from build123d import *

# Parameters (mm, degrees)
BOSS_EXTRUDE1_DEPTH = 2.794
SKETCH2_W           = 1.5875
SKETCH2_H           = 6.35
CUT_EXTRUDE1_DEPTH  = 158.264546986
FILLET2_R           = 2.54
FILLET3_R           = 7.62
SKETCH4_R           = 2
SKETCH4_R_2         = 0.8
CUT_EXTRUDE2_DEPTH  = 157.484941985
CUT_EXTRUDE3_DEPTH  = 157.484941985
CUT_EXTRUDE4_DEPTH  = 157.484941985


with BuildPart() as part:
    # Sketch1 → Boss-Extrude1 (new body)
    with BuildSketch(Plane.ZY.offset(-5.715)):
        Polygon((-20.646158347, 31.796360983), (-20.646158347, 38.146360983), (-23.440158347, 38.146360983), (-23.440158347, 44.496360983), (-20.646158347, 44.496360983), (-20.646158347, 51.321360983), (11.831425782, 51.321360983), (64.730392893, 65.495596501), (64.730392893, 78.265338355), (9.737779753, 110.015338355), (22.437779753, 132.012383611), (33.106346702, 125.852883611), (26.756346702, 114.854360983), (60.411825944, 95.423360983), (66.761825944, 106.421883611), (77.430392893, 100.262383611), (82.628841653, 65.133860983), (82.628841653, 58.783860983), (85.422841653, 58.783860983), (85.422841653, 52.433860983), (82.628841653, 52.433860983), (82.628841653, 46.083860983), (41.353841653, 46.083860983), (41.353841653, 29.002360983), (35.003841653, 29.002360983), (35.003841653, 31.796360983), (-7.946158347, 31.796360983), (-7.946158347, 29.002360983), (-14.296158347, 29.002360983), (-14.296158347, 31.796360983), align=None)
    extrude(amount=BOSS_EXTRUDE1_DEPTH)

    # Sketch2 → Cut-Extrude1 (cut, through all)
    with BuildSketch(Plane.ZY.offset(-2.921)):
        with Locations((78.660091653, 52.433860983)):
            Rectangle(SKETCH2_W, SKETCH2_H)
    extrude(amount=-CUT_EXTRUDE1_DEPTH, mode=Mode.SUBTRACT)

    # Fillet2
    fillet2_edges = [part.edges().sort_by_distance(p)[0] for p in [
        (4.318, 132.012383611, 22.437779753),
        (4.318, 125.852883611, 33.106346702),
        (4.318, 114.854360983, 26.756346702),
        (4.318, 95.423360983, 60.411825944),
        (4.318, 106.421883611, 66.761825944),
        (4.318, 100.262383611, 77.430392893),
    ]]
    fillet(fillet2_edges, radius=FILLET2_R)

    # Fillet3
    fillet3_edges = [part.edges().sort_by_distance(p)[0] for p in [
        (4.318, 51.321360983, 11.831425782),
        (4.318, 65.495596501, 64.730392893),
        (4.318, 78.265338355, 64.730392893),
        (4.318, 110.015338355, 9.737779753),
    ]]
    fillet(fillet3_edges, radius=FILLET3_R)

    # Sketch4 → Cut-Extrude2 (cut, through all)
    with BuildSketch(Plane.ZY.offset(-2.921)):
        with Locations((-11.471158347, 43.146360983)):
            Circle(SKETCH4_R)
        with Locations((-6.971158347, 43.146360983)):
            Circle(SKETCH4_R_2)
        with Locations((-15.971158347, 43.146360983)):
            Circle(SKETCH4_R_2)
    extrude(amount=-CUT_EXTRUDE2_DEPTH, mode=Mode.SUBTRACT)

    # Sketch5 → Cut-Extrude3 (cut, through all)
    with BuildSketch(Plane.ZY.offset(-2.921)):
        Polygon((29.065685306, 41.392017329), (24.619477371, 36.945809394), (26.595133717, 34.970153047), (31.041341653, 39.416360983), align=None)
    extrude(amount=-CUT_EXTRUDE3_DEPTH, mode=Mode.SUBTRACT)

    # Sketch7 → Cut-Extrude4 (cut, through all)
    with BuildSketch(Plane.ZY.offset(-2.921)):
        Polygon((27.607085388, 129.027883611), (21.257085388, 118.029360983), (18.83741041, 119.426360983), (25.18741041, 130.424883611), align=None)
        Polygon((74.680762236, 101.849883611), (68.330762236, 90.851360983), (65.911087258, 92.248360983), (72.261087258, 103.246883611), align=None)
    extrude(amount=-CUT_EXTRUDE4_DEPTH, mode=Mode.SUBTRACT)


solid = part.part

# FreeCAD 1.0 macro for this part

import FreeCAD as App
import Part
import Sketcher
from FreeCAD import Vector
Q = App.Units.Quantity


def edges_at(feature, points):
    """Names of the edges that pass closest to the given points."""
    edges = feature.Shape.Edges
    near = lambda p: min(range(len(edges)), key=lambda i: edges[i].distToShape(Part.Vertex(*p))[0])
    return sorted({f"Edge{near(p) + 1}" for p in points})


def add_polygon(sketch, points):
    """Adds a closed chain of lines whose ends are joined by coincident constraints."""
    first, n = sketch.GeometryCount, len(points)
    for a, b in zip(points, points[1:] + points[:1]):
        sketch.addGeometry(Part.LineSegment(App.Vector(*a, 0), App.Vector(*b, 0)), False)
    for i in range(n):
        sketch.addConstraint(Sketcher.Constraint("Coincident", first + i, 2, first + (i + 1) % n, 1))

doc = App.newDocument("Part")
body = doc.addObject("PartDesign::Body", "Body")

# Sketch on YZ plane
sketch1 = body.newObject("Sketcher::SketchObject", "Sketch")
sketch1.AttachmentSupport = (doc.getObject("YZ_Plane"), [""])
sketch1.MapMode = "FlatFace"
sketch1.AttachmentOffset = App.Placement(Vector(0, 0, 0.225 * 25.4), App.Rotation())
add_polygon(sketch1, [(38.1, -20.6), (31.8, -20.6), (31.8, -14.3), (29, -14.3), (29, -7.9), (31.8, -7.9), (31.8, 35), (29, 35), (29, 41.4), (46.1, 41.4), (46.1, 82.6), (52.4, 82.6), (52.4, 85.4), (58.8, 85.4), (58.8, 82.6), (65.1, 82.6), (100.3, 77.4), (106.4, 66.8), (95.4, 60.4), (114.9, 26.8), (125.9, 33.1), (132, 22.4), (110, 9.7), (78.3, 64.7), (65.5, 64.7), (51.3, 11.8), (51.3, -20.6), (44.5, -20.6), (44.5, -23.4), (38.1, -23.4)])  # lines 0-29
sketch1.addConstraint(Sketcher.Constraint("Horizontal", 0))
sketch1.addConstraint(Sketcher.Constraint("Vertical", 1))
sketch1.addConstraint(Sketcher.Constraint("Horizontal", 2))
sketch1.addConstraint(Sketcher.Constraint("Vertical", 3))
sketch1.addConstraint(Sketcher.Constraint("Horizontal", 4))
sketch1.addConstraint(Sketcher.Constraint("Vertical", 5))
sketch1.addConstraint(Sketcher.Constraint("Horizontal", 6))
sketch1.addConstraint(Sketcher.Constraint("Vertical", 7))
sketch1.addConstraint(Sketcher.Constraint("Horizontal", 8))
sketch1.addConstraint(Sketcher.Constraint("Vertical", 9))
sketch1.addConstraint(Sketcher.Constraint("Horizontal", 10))
sketch1.addConstraint(Sketcher.Constraint("Vertical", 11))
sketch1.addConstraint(Sketcher.Constraint("Horizontal", 12))
sketch1.addConstraint(Sketcher.Constraint("Vertical", 13))
sketch1.addConstraint(Sketcher.Constraint("Horizontal", 14))
sketch1.addConstraint(Sketcher.Constraint("Horizontal", 23))
sketch1.addConstraint(Sketcher.Constraint("Vertical", 25))
sketch1.addConstraint(Sketcher.Constraint("Horizontal", 26))
sketch1.addConstraint(Sketcher.Constraint("Vertical", 27))
sketch1.addConstraint(Sketcher.Constraint("Horizontal", 28))
sketch1.addConstraint(Sketcher.Constraint("Vertical", 29))
sketch1.addConstraint(Sketcher.Constraint("Perpendicular", 16, 17))
sketch1.addConstraint(Sketcher.Constraint("Perpendicular", 17, 18))
sketch1.addConstraint(Sketcher.Constraint("Perpendicular", 18, 19))
sketch1.addConstraint(Sketcher.Constraint("Perpendicular", 19, 20))
sketch1.addConstraint(Sketcher.Constraint("Perpendicular", 20, 21))
sketch1.addConstraint(Sketcher.Constraint("Perpendicular", 21, 22))
sketch1.addConstraint(Sketcher.Constraint("Horizontal", 10, 2, 13, 2))
sketch1.addConstraint(Sketcher.Constraint("Horizontal", 0, 2, 25, 2))
sketch1.addConstraint(Sketcher.Constraint("Vertical", 1, 2, 4, 2))
sketch1.addConstraint(Sketcher.Constraint("Vertical", 3, 2, 6, 2))
sketch1.addConstraint(Sketcher.Constraint("Equal", 0, 10))
sketch1.addConstraint(Sketcher.Constraint("Equal", 10, 12))
sketch1.addConstraint(Sketcher.Constraint("Equal", 12, 14))
sketch1.addConstraint(Sketcher.Constraint("Equal", 14, 28))
sketch1.addConstraint(Sketcher.Constraint("Equal", 28, 1))
sketch1.addConstraint(Sketcher.Constraint("Equal", 1, 3))
sketch1.addConstraint(Sketcher.Constraint("Equal", 3, 7))
sketch1.addConstraint(Sketcher.Constraint("Equal", 6, 11))
sketch1.addConstraint(Sketcher.Constraint("Equal", 13, 27))
sketch1.addConstraint(Sketcher.Constraint("Equal", 17, 19))
sketch1.addConstraint(Sketcher.Constraint("Equal", 16, 20))
sketch1.addConstraint(Sketcher.Constraint("Distance", 21, Q("1 in")))
sketch1.addConstraint(Sketcher.Constraint("Angle", 16, Q("-60 deg")))
sketch1.addConstraint(Sketcher.Constraint("Angle", 24, Q("-105 deg")))
sketch1.addConstraint(Sketcher.Constraint("Distance", 17, Q("0.5 in")))
sketch1.addConstraint(Sketcher.Constraint("Distance", 22, Q("2.5 in")))
sketch1.addConstraint(Sketcher.Constraint("DistanceX", 0, 2, 0, 1, Q("0.25 in")))
sketch1.addConstraint(Sketcher.Constraint("DistanceX", 2, 2, 2, 1, Q("0.11 in")))
sketch1.addConstraint(Sketcher.Constraint("DistanceY", 22, 2, 15, 2, Q("0.5 in")))
sketch1.addConstraint(Sketcher.Constraint("Distance", 18, Q("1.53 in")))
sketch1.addConstraint(Sketcher.Constraint("DistanceY", 9, 1, 9, 2, Q("1.625 in")))
sketch1.addConstraint(Sketcher.Constraint("DistanceX", 8, 1, 8, 2, Q("0.6725 in")))
sketch1.addConstraint(Sketcher.Constraint("DistanceX", 26, 2, 26, 1, Q("6.825 mm")))
sketch1.addConstraint(Sketcher.Constraint("DistanceY", 5, 1, 5, 2, Q("42.95 mm")))
sketch1.addConstraint(Sketcher.Constraint("DistanceX", 14, 2, 17, 2, Q("1.1925 in")))
sketch1.addConstraint(Sketcher.Constraint("DistanceY", 24, 2, 8, 2, Q("1.1622998 in")))
sketch1.addConstraint(Sketcher.Constraint("DistanceX", 23, 2, 23, 1, Q("12.769742 mm")))
sketch1.addConstraint(Sketcher.Constraint("DistanceX", -1, 1, 0, 2, Q("31.796361 mm")))
sketch1.addConstraint(Sketcher.Constraint("DistanceY", 0, 2, -1, 1, Q("20.646158 mm")))
pad1 = body.newObject("PartDesign::Pad", "Pad")
pad1.Profile = sketch1
pad1.Length = Q("0.11 in")
pad1.Reversed = True

# Sketch on YZ plane
sketch2 = body.newObject("Sketcher::SketchObject", "Sketch001")
sketch2.AttachmentSupport = (doc.getObject("YZ_Plane"), [""])
sketch2.MapMode = "FlatFace"
sketch2.AttachmentOffset = App.Placement(Vector(0, 0, 0.115 * 25.4), App.Rotation())
add_polygon(sketch2, [(55.6, 77.9), (49.3, 77.9), (49.3, 79.5), (55.6, 79.5)])  # lines 0-3
sketch2.addConstraint(Sketcher.Constraint("Horizontal", 0))
sketch2.addConstraint(Sketcher.Constraint("Vertical", 1))
sketch2.addConstraint(Sketcher.Constraint("Horizontal", 2))
sketch2.addConstraint(Sketcher.Constraint("Vertical", 3))
sketch2.addConstraint(Sketcher.Constraint("DistanceX", 0, 2, 0, 1, Q("0.25 in")))
sketch2.addConstraint(Sketcher.Constraint("DistanceY", 1, 1, 1, 2, Q("0.0625 in")))
sketch2.addConstraint(Sketcher.Constraint("DistanceX", -1, 1, 0, 2, Q("49.258861 mm")))
sketch2.addConstraint(Sketcher.Constraint("DistanceY", -1, 1, 0, 2, Q("77.866342 mm")))
pocket1 = body.newObject("PartDesign::Pocket", "Pocket")
pocket1.Profile = sketch2
pocket1.Type = "ThroughAll"
pocket1.Reversed = True
doc.recompute()

fillet = body.newObject("PartDesign::Fillet", "Fillet")
fillet.Base = (pocket1, edges_at(pocket1, [
    (4.318, 132.012, 22.438),
    (4.318, 125.853, 33.106),
    (4.318, 114.854, 26.756),
    (4.318, 95.423, 60.412),
    (4.318, 106.422, 66.762),
    (4.318, 100.262, 77.43),
]))
fillet.Radius = Q("0.1 in")
doc.recompute()

fillet2 = body.newObject("PartDesign::Fillet", "Fillet001")
fillet2.Base = (fillet, edges_at(fillet, [
    (4.318, 51.321, 11.831),
    (4.318, 65.496, 64.73),
    (4.318, 78.265, 64.73),
    (4.318, 110.015, 9.738),
]))
fillet2.Radius = Q("0.3 in")

# Sketch on YZ plane
sketch3 = body.newObject("Sketcher::SketchObject", "Sketch002")
sketch3.AttachmentSupport = (doc.getObject("YZ_Plane"), [""])
sketch3.MapMode = "FlatFace"
sketch3.AttachmentOffset = App.Placement(Vector(0, 0, 0.115 * 25.4), App.Rotation())
sketch3.addGeometry(Part.Circle(Vector(43.1, -11.5, 0), Vector(0, 0, 1), 2), False)
sketch3.addGeometry(Part.Circle(Vector(43.1, -7, 0), Vector(0, 0, 1), 0.8), False)
sketch3.addGeometry(Part.Circle(Vector(43.1, -16, 0), Vector(0, 0, 1), 0.8), False)
sketch3.addConstraint(Sketcher.Constraint("Equal", 1, 2))
sketch3.addConstraint(Sketcher.Constraint("Vertical", 0, 3, 1, 3))
sketch3.addConstraint(Sketcher.Constraint("Vertical", 1, 3, 2, 3))
sketch3.addConstraint(Sketcher.Constraint("Diameter", 0, Q("4 mm")))
sketch3.addConstraint(Sketcher.Constraint("Diameter", 1, Q("1.6 mm")))
sketch3.addConstraint(Sketcher.Constraint("DistanceY", 0, 3, 1, 3, Q("4.5 mm")))
sketch3.addConstraint(Sketcher.Constraint("DistanceY", 2, 3, 0, 3, Q("4.5 mm")))
sketch3.addConstraint(Sketcher.Constraint("DistanceX", -1, 1, 0, 3, Q("43.146361 mm")))
sketch3.addConstraint(Sketcher.Constraint("DistanceY", 0, 3, -1, 1, Q("11.471158 mm")))
pocket2 = body.newObject("PartDesign::Pocket", "Pocket001")
pocket2.Profile = sketch3
pocket2.Type = "ThroughAll"
pocket2.Reversed = True

# Sketch on YZ plane
sketch4 = body.newObject("Sketcher::SketchObject", "Sketch003")
sketch4.AttachmentSupport = (doc.getObject("YZ_Plane"), [""])
sketch4.MapMode = "FlatFace"
sketch4.AttachmentOffset = App.Placement(Vector(0, 0, 0.115 * 25.4), App.Rotation())
add_polygon(sketch4, [(41.4, 29.1), (36.9, 24.6), (35, 26.6), (39.4, 31)])  # lines 0-3
sketch4.addConstraint(Sketcher.Constraint("Perpendicular", 0, 1))
sketch4.addConstraint(Sketcher.Constraint("Perpendicular", 1, 2))
sketch4.addConstraint(Sketcher.Constraint("Perpendicular", 2, 3))
sketch4.addConstraint(Sketcher.Constraint("Angle", 0, Q("-135 deg")))
sketch4.addConstraint(Sketcher.Constraint("Distance", 1, Q("0.11 in")))
sketch4.addConstraint(Sketcher.Constraint("DistanceY", -1, 1, 2, 2, Q("1.2221001 in")))
sketch4.addConstraint(Sketcher.Constraint("DistanceX", -1, 1, 0, 2, Q("36.945809 mm")))
sketch4.addConstraint(Sketcher.Constraint("DistanceX", -1, 1, 2, 2, Q("39.416361 mm")))
pocket3 = body.newObject("PartDesign::Pocket", "Pocket002")
pocket3.Profile = sketch4
pocket3.Type = "ThroughAll"
pocket3.Reversed = True

# Sketch on YZ plane
sketch5 = body.newObject("Sketcher::SketchObject", "Sketch004")
sketch5.AttachmentSupport = (doc.getObject("YZ_Plane"), [""])
sketch5.MapMode = "FlatFace"
sketch5.AttachmentOffset = App.Placement(Vector(0, 0, 0.115 * 25.4), App.Rotation())
add_polygon(sketch5, [(118, 21.3), (129, 27.6), (130.4, 25.2), (119.4, 18.8)])  # lines 0-3
add_polygon(sketch5, [(90.9, 68.3), (101.8, 74.7), (103.2, 72.3), (92.2, 65.9)])  # lines 4-7
sketch5.addConstraint(Sketcher.Constraint("Perpendicular", 0, 1))
sketch5.addConstraint(Sketcher.Constraint("Perpendicular", 1, 2))
sketch5.addConstraint(Sketcher.Constraint("Perpendicular", 2, 3))
sketch5.addConstraint(Sketcher.Constraint("Perpendicular", 3, 4))
sketch5.addConstraint(Sketcher.Constraint("Perpendicular", 4, 5))
sketch5.addConstraint(Sketcher.Constraint("Perpendicular", 5, 6))
sketch5.addConstraint(Sketcher.Constraint("Perpendicular", 6, 7))
sketch5.addConstraint(Sketcher.Constraint("Equal", 2, 4))
sketch5.addConstraint(Sketcher.Constraint("Equal", 3, 5))
sketch5.addConstraint(Sketcher.Constraint("Angle", 0, Q("30 deg")))
sketch5.addConstraint(Sketcher.Constraint("Distance", 0, Q("0.5 in")))
sketch5.addConstraint(Sketcher.Constraint("Distance", 1, Q("0.11 in")))
sketch5.addConstraint(Sketcher.Constraint("DistanceX", 4, 2, 0, 2, Q("1.07 in")))
sketch5.addConstraint(Sketcher.Constraint("DistanceY", 0, 2, 5, 2, Q("44.654002 mm")))
sketch5.addConstraint(Sketcher.Constraint("DistanceY", -1, 1, 1, 2, Q("25.18741 mm")))
sketch5.addConstraint(Sketcher.Constraint("DistanceX", -1, 1, 2, 2, Q("119.426361 mm")))
pocket4 = body.newObject("PartDesign::Pocket", "Pocket003")
pocket4.Profile = sketch5
pocket4.Type = "ThroughAll"
pocket4.Reversed = True

doc.recompute()
